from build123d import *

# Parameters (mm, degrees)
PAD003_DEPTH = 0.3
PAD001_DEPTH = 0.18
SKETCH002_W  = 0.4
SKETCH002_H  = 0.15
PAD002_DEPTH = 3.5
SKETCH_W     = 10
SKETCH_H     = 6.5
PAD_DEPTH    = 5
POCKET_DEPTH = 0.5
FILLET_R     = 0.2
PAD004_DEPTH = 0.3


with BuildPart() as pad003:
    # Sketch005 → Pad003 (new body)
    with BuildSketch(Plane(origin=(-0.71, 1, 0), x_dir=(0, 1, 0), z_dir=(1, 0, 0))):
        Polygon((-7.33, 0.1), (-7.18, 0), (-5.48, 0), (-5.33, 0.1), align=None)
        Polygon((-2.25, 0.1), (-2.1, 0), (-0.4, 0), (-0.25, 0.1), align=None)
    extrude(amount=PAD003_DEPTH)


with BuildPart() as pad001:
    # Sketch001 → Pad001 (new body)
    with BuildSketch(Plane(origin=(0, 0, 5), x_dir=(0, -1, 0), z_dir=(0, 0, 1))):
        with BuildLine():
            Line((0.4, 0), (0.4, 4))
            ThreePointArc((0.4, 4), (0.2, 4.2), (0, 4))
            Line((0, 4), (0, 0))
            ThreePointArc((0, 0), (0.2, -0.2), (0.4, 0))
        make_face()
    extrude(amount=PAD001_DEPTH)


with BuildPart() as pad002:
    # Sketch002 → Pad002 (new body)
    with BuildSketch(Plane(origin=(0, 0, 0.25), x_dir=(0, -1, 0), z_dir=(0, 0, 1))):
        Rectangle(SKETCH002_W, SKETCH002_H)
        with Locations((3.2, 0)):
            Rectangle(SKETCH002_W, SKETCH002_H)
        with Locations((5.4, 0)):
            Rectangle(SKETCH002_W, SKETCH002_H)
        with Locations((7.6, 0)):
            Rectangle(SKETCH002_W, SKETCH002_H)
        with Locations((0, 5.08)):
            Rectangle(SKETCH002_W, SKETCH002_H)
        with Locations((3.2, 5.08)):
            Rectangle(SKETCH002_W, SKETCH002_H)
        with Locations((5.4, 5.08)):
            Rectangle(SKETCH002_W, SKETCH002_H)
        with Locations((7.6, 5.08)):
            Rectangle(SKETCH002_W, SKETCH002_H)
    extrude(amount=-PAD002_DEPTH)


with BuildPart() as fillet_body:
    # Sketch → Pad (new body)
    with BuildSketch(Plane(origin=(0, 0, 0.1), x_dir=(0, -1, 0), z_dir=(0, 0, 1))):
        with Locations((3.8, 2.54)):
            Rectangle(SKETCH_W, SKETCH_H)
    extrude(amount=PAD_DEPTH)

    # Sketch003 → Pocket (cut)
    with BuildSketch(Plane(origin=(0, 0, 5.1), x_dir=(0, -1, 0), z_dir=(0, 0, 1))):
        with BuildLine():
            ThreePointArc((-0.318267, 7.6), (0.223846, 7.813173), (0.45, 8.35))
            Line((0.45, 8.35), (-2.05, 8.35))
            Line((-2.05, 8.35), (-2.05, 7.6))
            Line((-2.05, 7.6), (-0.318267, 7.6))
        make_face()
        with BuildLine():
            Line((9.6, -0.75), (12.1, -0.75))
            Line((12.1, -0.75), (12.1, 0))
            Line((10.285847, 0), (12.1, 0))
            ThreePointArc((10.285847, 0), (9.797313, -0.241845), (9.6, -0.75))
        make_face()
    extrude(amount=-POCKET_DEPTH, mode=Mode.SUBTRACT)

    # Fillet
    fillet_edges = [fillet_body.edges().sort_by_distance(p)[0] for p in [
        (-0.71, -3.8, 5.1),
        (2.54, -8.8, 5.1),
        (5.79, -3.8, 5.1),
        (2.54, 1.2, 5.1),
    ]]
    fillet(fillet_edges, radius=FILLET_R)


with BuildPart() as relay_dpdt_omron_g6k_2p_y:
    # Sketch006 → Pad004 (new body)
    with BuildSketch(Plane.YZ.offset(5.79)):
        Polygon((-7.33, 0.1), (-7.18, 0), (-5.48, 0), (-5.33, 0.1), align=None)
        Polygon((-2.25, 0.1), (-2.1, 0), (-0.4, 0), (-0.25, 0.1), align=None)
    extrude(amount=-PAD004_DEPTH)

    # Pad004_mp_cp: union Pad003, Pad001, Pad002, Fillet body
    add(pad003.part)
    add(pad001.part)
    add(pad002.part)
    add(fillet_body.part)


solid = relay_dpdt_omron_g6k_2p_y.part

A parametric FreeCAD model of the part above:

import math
import FreeCAD as App
import Part
import Sketcher
from FreeCAD import Vector


def edges_at(feature, points):
    """Names of the edges that pass closest to the given points."""
    edges = feature.Shape.Edges
    near = lambda p: min(range(len(edges)), key=lambda i: edges[i].distToShape(Part.Vertex(*p))[0])
    return sorted({f"Edge{near(p) + 1}" for p in points})


def add_polygon(sketch, points):
    """Adds a closed chain of lines whose ends are joined by coincident constraints."""
    first, n = sketch.GeometryCount, len(points)
    for a, b in zip(points, points[1:] + points[:1]):
        sketch.addGeometry(Part.LineSegment(App.Vector(*a, 0), App.Vector(*b, 0)), False)
    for i in range(n):
        sketch.addConstraint(Sketcher.Constraint("Coincident", first + i, 2, first + (i + 1) % n, 1))

doc = App.newDocument("Part")
body = doc.addObject("PartDesign::Body", "Body")
body.AllowCompound = True

sketch1 = doc.addObject("Sketcher::SketchObject", "Sketch")
body.addObject(sketch1)
sketch1.AttachmentSupport = (doc.YZ_Plane, [""])
sketch1.MapMode = "FlatFace"
sketch1.AttachmentOffset = App.Placement(Vector(0, 0, -0.71), App.Rotation())
add_polygon(sketch1, [(-6.33, 0.1), (-6.18, 0), (-4.48, 0), (-4.33, 0.1)])
add_polygon(sketch1, [(-1.25, 0.1), (-1.1, 0), (0.6, 0), (0.75, 0.1)])
sketch1.addConstraint([
    Sketcher.Constraint("Horizontal", 1),
    Sketcher.Constraint("Horizontal", 3),
    Sketcher.Constraint("Horizontal", 5),
    Sketcher.Constraint("Horizontal", 7),
    Sketcher.Constraint("PointOnObject", 0, 2, -1),
    Sketcher.Constraint("PointOnObject", 4, 2, -1),
    Sketcher.Constraint("Parallel", 0, 4),
    Sketcher.Constraint("Parallel", 2, 6),
    Sketcher.Constraint("Horizontal", 3, 2, 6, 2),
    Sketcher.Constraint("Equal", 1, 5),
    Sketcher.Constraint("Equal", 0, 2),
    Sketcher.Constraint("DistanceX", 3, 2, 3, 1, 2.0),
    Sketcher.Constraint("DistanceX", 1, 1, 1, 2, 1.7),
    Sketcher.Constraint("DistanceY", -1, 1, 2, 2, 0.1),
    Sketcher.Constraint("DistanceX", 4, 2, -1, 1, 1.1),
    Sketcher.Constraint("DistanceX", 0, 2, -1, 1, 6.18),
])
pad1 = doc.addObject("PartDesign::Pad", "Pad")
body.addObject(pad1)
pad1.Profile = sketch1
pad1.Length = 0.3
body2 = doc.addObject("PartDesign::Body", "Body001")

sketch2 = doc.addObject("Sketcher::SketchObject", "Sketch001")
body2.addObject(sketch2)
sketch2.AttachmentSupport = (doc.getObject("XY_Plane001"), [""])
sketch2.MapMode = "FlatFace"
sketch2.AttachmentOffset = App.Placement(Vector(0, 0, 5), App.Rotation())
sketch2.addGeometry([
    Part.LineSegment(Vector(0, -0.4, 0), Vector(4, -0.4, 0)),
    Part.ArcOfCircle(Part.Circle(Vector(4, -0.2, 0), Vector(0, 0, 1), 0.2), math.radians(-90), math.radians(90)),
    Part.LineSegment(Vector(4, 0, 0), Vector(0, 0, 0)),
    Part.ArcOfCircle(Part.Circle(Vector(0, -0.2, 0), Vector(0, 0, 1), 0.2), math.radians(90), math.radians(270)),
], False)
sketch2.addConstraint([
    Sketcher.Constraint("Tangent", 0, 2, 1, 1),
    Sketcher.Constraint("Tangent", 1, 2, 2, 1),
    Sketcher.Constraint("Tangent", 2, 2, 3, 1),
    Sketcher.Constraint("Tangent", 3, 2, 0, 1),
    Sketcher.Constraint("Horizontal", 0),
    Sketcher.Constraint("Horizontal", 2),
    Sketcher.Constraint("Coincident", 2, 2, -1, 1),
    Sketcher.Constraint("Radius", 1, 0.2),
    Sketcher.Constraint("DistanceX", 0, 1, 0, 2, 4.0),
])
pad2 = doc.addObject("PartDesign::Pad", "Pad001")
body2.addObject(pad2)
pad2.Profile = sketch2
pad2.Length = 0.18
body3 = doc.addObject("PartDesign::Body", "Body002")
body3.AllowCompound = True

sketch3 = doc.addObject("Sketcher::SketchObject", "Sketch002")
body3.addObject(sketch3)
sketch3.AttachmentSupport = (doc.getObject("XY_Plane002"), [""])
sketch3.MapMode = "FlatFace"
sketch3.AttachmentOffset = App.Placement(Vector(0, 0, 0.25), App.Rotation())
add_polygon(sketch3, [(0.07, 0.2), (-0.07, 0.2), (-0.07, -0.2), (0.07, -0.2)])
add_polygon(sketch3, [(0.07, -3), (-0.07, -3), (-0.07, -3.4), (0.07, -3.4)])
add_polygon(sketch3, [(0.07, -5.2), (-0.07, -5.2), (-0.07, -5.6), (0.07, -5.6)])
add_polygon(sketch3, [(0.07, -7.4), (-0.07, -7.4), (-0.07, -7.8), (0.07, -7.8)])
add_polygon(sketch3, [(5.16, 0.2), (5, 0.2), (5, -0.2), (5.16, -0.2)])
add_polygon(sketch3, [(5.16, -3), (5, -3), (5, -3.4), (5.16, -3.4)])
add_polygon(sketch3, [(5.16, -5.2), (5, -5.2), (5, -5.6), (5.16, -5.6)])
add_polygon(sketch3, [(5.16, -7.4), (5, -7.4), (5, -7.8), (5.16, -7.8)])
sketch3.addConstraint([
    Sketcher.Constraint("Horizontal", 0),
    Sketcher.Constraint("Vertical", 1),
    Sketcher.Constraint("Horizontal", 2),
    Sketcher.Constraint("Vertical", 3),
    Sketcher.Constraint("Horizontal", 4),
    Sketcher.Constraint("Vertical", 5),
    Sketcher.Constraint("Horizontal", 6),
    Sketcher.Constraint("Vertical", 7),
    Sketcher.Constraint("Horizontal", 8),
    Sketcher.Constraint("Vertical", 9),
    Sketcher.Constraint("Horizontal", 10),
    Sketcher.Constraint("Vertical", 11),
    Sketcher.Constraint("Horizontal", 12),
    Sketcher.Constraint("Vertical", 13),
    Sketcher.Constraint("Horizontal", 14),
    Sketcher.Constraint("Vertical", 15),
    Sketcher.Constraint("Horizontal", 16),
    Sketcher.Constraint("Vertical", 17),
    Sketcher.Constraint("Horizontal", 18),
    Sketcher.Constraint("Vertical", 19),
    Sketcher.Constraint("Horizontal", 20),
    Sketcher.Constraint("Vertical", 21),
    Sketcher.Constraint("Horizontal", 22),
    Sketcher.Constraint("Vertical", 23),
    Sketcher.Constraint("Horizontal", 24),
    Sketcher.Constraint("Vertical", 25),
    Sketcher.Constraint("Horizontal", 26),
    Sketcher.Constraint("Vertical", 27),
    Sketcher.Constraint("Horizontal", 28),
    Sketcher.Constraint("Vertical", 29),
    Sketcher.Constraint("Horizontal", 30),
    Sketcher.Constraint("Vertical", 31),
    Sketcher.Constraint("Symmetric", 0, 2, 2, 2, -1, 1),
    Sketcher.Constraint("Horizontal", 3, 2, 16, 2),
    Sketcher.Constraint("Horizontal", 2, 2, 17, 2),
    Sketcher.Constraint("Horizontal", 7, 2, 20, 2),
    Sketcher.Constraint("Horizontal", 6, 2, 21, 2),
    Sketcher.Constraint("Horizontal", 11, 2, 24, 2),
    Sketcher.Constraint("Horizontal", 10, 2, 25, 2),
    Sketcher.Constraint("Horizontal", 15, 2, 28, 2),
    Sketcher.Constraint("Horizontal", 14, 2, 29, 2),
    Sketcher.Constraint("Vertical", 1, 2, 4, 2),
    Sketcher.Constraint("Vertical", 3, 2, 6, 2),
    Sketcher.Constraint("Vertical", 5, 2, 8, 2),
    Sketcher.Constraint("Vertical", 7, 2, 10, 2),
    Sketcher.Constraint("Vertical", 9, 2, 12, 2),
    Sketcher.Constraint("Vertical", 11, 2, 14, 2),
    Sketcher.Constraint("Vertical", 17, 2, 20, 2),
    Sketcher.Constraint("Vertical", 19, 2, 22, 2),
    Sketcher.Constraint("Vertical", 21, 2, 24, 2),
    Sketcher.Constraint("Vertical", 23, 2, 26, 2),
    Sketcher.Constraint("Vertical", 25, 2, 28, 2),
    Sketcher.Constraint("Vertical", 27, 2, 30, 2),
    Sketcher.Constraint("Equal", 14, 16),
    Sketcher.Constraint("Equal", 3, 5),
    Sketcher.Constraint("Equal", 7, 9),
    Sketcher.Constraint("Equal", 11, 13),
    Sketcher.Constraint("DistanceY", 1, 2, 1, 1, 0.4),
    Sketcher.Constraint("DistanceY", 4, 2, -1, 1, 3.0),
    Sketcher.Constraint("DistanceY", 8, 2, 1, 2, 5.0),
    Sketcher.Constraint("DistanceY", 12, 2, 5, 2, 4.0),
    Sketcher.Constraint("DistanceX", 0, 2, 0, 1, 0.15),
    Sketcher.Constraint("DistanceX", 3, 2, 16, 2, 4.93),
])
pad3 = doc.addObject("PartDesign::Pad", "Pad002")
body3.addObject(pad3)
pad3.Profile = sketch3
pad3.Length = 3.5
pad3.Reversed = True
body4 = doc.addObject("PartDesign::Body", "Body003")

sketch4 = doc.addObject("Sketcher::SketchObject", "Sketch003")
body4.addObject(sketch4)
sketch4.AttachmentSupport = (doc.getObject("XY_Plane003"), [""])
sketch4.MapMode = "FlatFace"
sketch4.AttachmentOffset = App.Placement(Vector(0, 0, 0.1), App.Rotation())
add_polygon(sketch4, [(6, 1), (-1, 1), (-1, -9), (6, -9)])
sketch4.addConstraint([
    Sketcher.Constraint("Horizontal", 0),
    Sketcher.Constraint("Vertical", 1),
    Sketcher.Constraint("Horizontal", 2),
    Sketcher.Constraint("Vertical", 3),
    Sketcher.Constraint("DistanceY", 1, 2, 1, 1, 10.0),
    Sketcher.Constraint("DistanceX", 0, 2, 0, 1, 6.5),
    Sketcher.Constraint("DistanceY", -1, 1, 0, 2, 1.2),
    Sketcher.Constraint("DistanceX", 0, 2, -1, 1, 0.71),
])
pad4 = doc.addObject("PartDesign::Pad", "Pad003")
body4.addObject(pad4)
pad4.Profile = sketch4
pad4.Length = 5

sketch5 = doc.addObject("Sketcher::SketchObject", "Sketch004")
body4.addObject(sketch5)
sketch5.AttachmentSupport = (doc.getObject("XY_Plane003"), [""])
sketch5.MapMode = "FlatFace"
sketch5.AttachmentOffset = App.Placement(Vector(0, 0, 5.1), App.Rotation())
sketch5.addGeometry([
    Part.ArcOfCircle(Part.Circle(Vector(8.350001, 0.300218, 0), Vector(0, 0, 1), 0.750218), math.radians(178.621405), math.radians(269.999956)),
    Part.LineSegment(Vector(8.35, -0.45, 0), Vector(8.35, 2.05, 0)),
    Part.LineSegment(Vector(8.35, 2.05, 0), Vector(7.6, 2.05, 0)),
    Part.LineSegment(Vector(7.6, 2.05, 0), Vector(7.6, 0.318267, 0)),
    Part.LineSegment(Vector(-0.75, -9.6, 0), Vector(-0.75, -12.1, 0)),
    Part.LineSegment(Vector(-0.75, -12.1, 0), Vector(0, -12.1, 0)),
    Part.LineSegment(Vector(0, -12.1, 0), Vector(0, -10.285847, 0)),
    Part.ArcOfCircle(Part.Circle(Vector(-0.749999, -10.353, 0), Vector(0, 0, 1), 0.753), math.radians(5.116445), math.radians(90.000051)),
], False)
sketch5.addConstraint([
    Sketcher.Constraint("Coincident", 0, 2, 1, 1),
    Sketcher.Constraint("Coincident", 1, 2, 2, 1),
    Sketcher.Constraint("Coincident", 2, 2, 3, 1),
    Sketcher.Constraint("Coincident", 3, 2, 0, 1),
    Sketcher.Constraint("Coincident", 4, 2, 5, 1),
    Sketcher.Constraint("Coincident", 5, 2, 6, 1),
    Sketcher.Constraint("Coincident", 6, 2, 7, 1),
    Sketcher.Constraint("Coincident", 7, 2, 4, 1),
    Sketcher.Constraint("Vertical", 1),
    Sketcher.Constraint("Horizontal", 2),
    Sketcher.Constraint("Vertical", 3),
    Sketcher.Constraint("Vertical", 4),
    Sketcher.Constraint("Horizontal", 5),
    Sketcher.Constraint("Vertical", 6),
    Sketcher.Constraint("PointOnObject", 5, 2, -2),
    Sketcher.Constraint("DistanceY", 1, 1, 1, 2, 2.5),
    Sketcher.Constraint("DistanceY", 4, 2, 4, 1, 2.5),
    Sketcher.Constraint("Radius", 7, 0.753),
    Sketcher.Constraint("DistanceX", 2, 2, 2, 1, 0.75),
    Sketcher.Constraint("DistanceX", 5, 1, 5, 2, 0.75),
    Sketcher.Constraint("DistanceX", -1, 1, 2, 2, 7.6),
    Sketcher.Constraint("DistanceY", 4, 2, -1, 1, 12.1),
    Sketcher.Constraint("DistanceX", 7, 3, 0, 3, 9.1),
    Sketcher.Constraint("DistanceX", 7, 3, 0, 2, 9.099999),
    Sketcher.Constraint("DistanceY", 0, 2, -1, 1, 0.45),
    Sketcher.Constraint("Radius", 0, 0.750218),
])
pocket1 = doc.addObject("PartDesign::Pocket", "Pocket")
body4.addObject(pocket1)
pocket1.Profile = sketch5
pocket1.Length = 0.5
doc.recompute()

fillet = doc.addObject("PartDesign::Fillet", "Fillet")
body4.addObject(fillet)
fillet.Base = (pocket1, edges_at(pocket1, [
    (-0.71, -3.8, 5.1),
    (2.54, -8.8, 5.1),
    (5.79, -3.8, 5.1),
    (2.54, 1.2, 5.1),
]))
fillet.Radius = 0.2
body5 = doc.addObject("PartDesign::Body", "Body004")
body5.AllowCompound = True

sketch6 = doc.addObject("Sketcher::SketchObject", "Sketch005")
body5.addObject(sketch6)
sketch6.AttachmentSupport = (doc.getObject("YZ_Plane004"), [""])
sketch6.MapMode = "FlatFace"
sketch6.AttachmentOffset = App.Placement(Vector(0, 0, 5.79), App.Rotation())
add_polygon(sketch6, [(-7.33, 0.1), (-7.18, 0), (-5.48, 0), (-5.33, 0.1)])
add_polygon(sketch6, [(-2.25, 0.1), (-2.1, 0), (-0.4, 0), (-0.25, 0.1)])
sketch6.addConstraint([
    Sketcher.Constraint("Horizontal", 1),
    Sketcher.Constraint("Horizontal", 3),
    Sketcher.Constraint("Horizontal", 5),
    Sketcher.Constraint("Horizontal", 7),
    Sketcher.Constraint("PointOnObject", 0, 2, -1),
    Sketcher.Constraint("PointOnObject", 4, 2, -1),
    Sketcher.Constraint("Parallel", 0, 4),
    Sketcher.Constraint("Parallel", 2, 6),
    Sketcher.Constraint("Horizontal", 3, 2, 6, 2),
    Sketcher.Constraint("Equal", 1, 5),
    Sketcher.Constraint("Equal", 0, 2),
    Sketcher.Constraint("DistanceX", 3, 2, 3, 1, 2.0),
    Sketcher.Constraint("DistanceX", 1, 1, 1, 2, 1.7),
    Sketcher.Constraint("DistanceY", -1, 1, 2, 2, 0.1),
    Sketcher.Constraint("DistanceX", 4, 2, -1, 1, 2.1),
    Sketcher.Constraint("DistanceX", 0, 2, -1, 1, 7.18),
])
pad5 = doc.addObject("PartDesign::Pad", "Pad004")
body5.addObject(pad5)
pad5.Profile = sketch6
pad5.Length = 0.3
pad5.Reversed = True
doc.recompute()

boolean = doc.addObject("PartDesign::Boolean", "Boolean")
body5.addObject(boolean)
boolean.Type = "Fuse"
boolean.addObjects([body])
doc.recompute()

boolean2 = doc.addObject("PartDesign::Boolean", "Boolean001")
body5.addObject(boolean2)
boolean2.Type = "Fuse"
boolean2.addObjects([body2])
doc.recompute()

boolean3 = doc.addObject("PartDesign::Boolean", "Boolean002")
body5.addObject(boolean3)
boolean3.Type = "Fuse"
boolean3.addObjects([body3])
doc.recompute()

boolean4 = doc.addObject("PartDesign::Boolean", "Boolean003")
body5.addObject(boolean4)
boolean4.Type = "Fuse"
boolean4.addObjects([body4])

doc.recompute()
